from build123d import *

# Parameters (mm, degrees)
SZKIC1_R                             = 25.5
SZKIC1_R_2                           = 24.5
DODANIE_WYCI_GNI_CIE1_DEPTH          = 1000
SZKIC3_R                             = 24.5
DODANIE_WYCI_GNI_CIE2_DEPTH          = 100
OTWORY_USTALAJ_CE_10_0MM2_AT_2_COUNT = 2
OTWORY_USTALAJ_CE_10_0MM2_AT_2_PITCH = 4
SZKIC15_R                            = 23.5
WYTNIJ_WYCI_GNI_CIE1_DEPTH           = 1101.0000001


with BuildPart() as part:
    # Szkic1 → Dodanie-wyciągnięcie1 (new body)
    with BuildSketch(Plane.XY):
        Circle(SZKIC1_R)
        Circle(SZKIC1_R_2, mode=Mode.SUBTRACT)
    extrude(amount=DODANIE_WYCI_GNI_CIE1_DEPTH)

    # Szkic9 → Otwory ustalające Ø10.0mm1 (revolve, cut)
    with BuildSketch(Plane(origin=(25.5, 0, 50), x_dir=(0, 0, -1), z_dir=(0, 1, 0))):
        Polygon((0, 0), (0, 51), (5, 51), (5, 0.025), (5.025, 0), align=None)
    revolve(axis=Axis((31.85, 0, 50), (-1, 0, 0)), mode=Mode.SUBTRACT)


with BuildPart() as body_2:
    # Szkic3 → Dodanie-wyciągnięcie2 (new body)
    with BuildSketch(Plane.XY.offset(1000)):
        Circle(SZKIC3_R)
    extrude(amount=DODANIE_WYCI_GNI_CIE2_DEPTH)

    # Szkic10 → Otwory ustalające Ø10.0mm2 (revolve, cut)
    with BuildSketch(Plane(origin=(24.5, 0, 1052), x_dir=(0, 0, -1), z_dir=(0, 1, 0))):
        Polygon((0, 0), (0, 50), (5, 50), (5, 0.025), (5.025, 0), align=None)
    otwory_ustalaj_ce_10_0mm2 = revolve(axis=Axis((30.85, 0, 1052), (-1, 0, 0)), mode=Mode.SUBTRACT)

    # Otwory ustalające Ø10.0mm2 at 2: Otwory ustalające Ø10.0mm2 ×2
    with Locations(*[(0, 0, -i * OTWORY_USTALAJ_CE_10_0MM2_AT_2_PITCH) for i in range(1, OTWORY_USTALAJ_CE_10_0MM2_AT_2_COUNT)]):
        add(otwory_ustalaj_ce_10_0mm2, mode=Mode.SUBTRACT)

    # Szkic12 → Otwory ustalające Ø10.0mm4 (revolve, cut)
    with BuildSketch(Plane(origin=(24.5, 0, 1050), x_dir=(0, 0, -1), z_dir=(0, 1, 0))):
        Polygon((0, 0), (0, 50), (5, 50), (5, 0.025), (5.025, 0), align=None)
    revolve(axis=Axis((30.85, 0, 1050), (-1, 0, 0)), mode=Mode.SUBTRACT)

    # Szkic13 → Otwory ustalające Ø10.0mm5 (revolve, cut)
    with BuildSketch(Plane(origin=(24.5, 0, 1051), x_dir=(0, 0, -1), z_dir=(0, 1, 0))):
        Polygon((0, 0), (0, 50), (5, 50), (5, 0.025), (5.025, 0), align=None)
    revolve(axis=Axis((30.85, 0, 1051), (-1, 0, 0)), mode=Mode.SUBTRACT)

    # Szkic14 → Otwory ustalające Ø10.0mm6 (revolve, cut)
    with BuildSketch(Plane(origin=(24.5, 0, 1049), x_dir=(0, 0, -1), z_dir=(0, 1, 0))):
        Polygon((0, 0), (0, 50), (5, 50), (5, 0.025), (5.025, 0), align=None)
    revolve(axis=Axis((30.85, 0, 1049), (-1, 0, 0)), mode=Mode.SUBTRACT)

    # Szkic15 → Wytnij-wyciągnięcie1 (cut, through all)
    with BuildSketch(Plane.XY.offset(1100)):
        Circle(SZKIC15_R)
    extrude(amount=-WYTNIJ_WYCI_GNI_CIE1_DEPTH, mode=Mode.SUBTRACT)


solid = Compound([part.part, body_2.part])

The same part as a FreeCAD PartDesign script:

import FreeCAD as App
import Part
import Sketcher
from FreeCAD import Vector
Q = App.Units.Quantity


def add_polygon(sketch, points):
    """Adds a closed chain of lines whose ends are joined by coincident constraints."""
    first, n = sketch.GeometryCount, len(points)
    for a, b in zip(points, points[1:] + points[:1]):
        sketch.addGeometry(Part.LineSegment(App.Vector(*a, 0), App.Vector(*b, 0)), False)
    for i in range(n):
        sketch.addConstraint(Sketcher.Constraint("Coincident", first + i, 2, first + (i + 1) % n, 1))

doc = App.newDocument("Part")
body = doc.addObject("PartDesign::Body", "Body")

sketch1 = doc.addObject("Sketcher::SketchObject", "Sketch")
body.addObject(sketch1)
sketch1.AttachmentSupport = (doc.XY_Plane, [""])
sketch1.MapMode = "FlatFace"
sketch1.addGeometry([
    Part.Circle(Vector(0, 0, 0), Vector(0, 0, 1), 25.5),
    Part.Circle(Vector(0, 0, 0), Vector(0, 0, 1), 24.5),
], False)
sketch1.addConstraint([
    Sketcher.Constraint("Coincident", 0, 3, -1, 1),
    Sketcher.Constraint("Coincident", 1, 3, -1, 1),
    Sketcher.Constraint("Diameter", 0, 51.0),
    Sketcher.Constraint("Diameter", 1, 49.0),
])
pad1 = doc.addObject("PartDesign::Pad", "Pad")
body.addObject(pad1)
pad1.Profile = sketch1
pad1.Length = 1000

sketch2 = doc.addObject("Sketcher::SketchObject", "Sketch001")
body.addObject(sketch2)
sketch2.AttachmentSupport = (doc.XZ_Plane, [""])
sketch2.MapMode = "FlatFace"
add_polygon(sketch2, [(-25.5, 50), (25.5, 50), (25.5, 44.975), (25.475, 45), (-25.5, 45)])
sketch2.addGeometry(Part.LineSegment(Vector(25.5, 50, 0), Vector(-25.5, 50, 0)), True)
sketch2.addConstraint([
    Sketcher.Constraint("Horizontal", 0),
    Sketcher.Constraint("Vertical", 1),
    Sketcher.Constraint("Horizontal", 3),
    Sketcher.Constraint("Vertical", 4),
    Sketcher.Constraint("Horizontal", 5),
    Sketcher.Constraint("Coincident", 5, 1, 0, 2),
    Sketcher.Constraint("Vertical", 3, 2, 5, 2),
    Sketcher.Constraint("DistanceX", 0, 1, 0, 2, 51.0),
    Sketcher.Constraint("DistanceY", 4, 1, 4, 2, 5.0),
    Sketcher.Constraint("Angle", 2, Q("135 deg")),
    Sketcher.Constraint("DistanceY", -1, 1, 0, 2, 50.0),
    Sketcher.Constraint("DistanceX", -1, 1, 0, 2, 25.5),
    Sketcher.Constraint("DistanceX", 3, 2, 3, 1, 50.975),
])
groove = doc.addObject("PartDesign::Groove", "Groove")
body.addObject(groove)
groove.Profile = sketch2
groove.ReferenceAxis = (sketch2, ["Axis0"])
groove.Angle = 360
body2 = doc.addObject("PartDesign::Body", "Body001")

sketch3 = doc.addObject("Sketcher::SketchObject", "Sketch002")
body2.addObject(sketch3)
sketch3.AttachmentSupport = (doc.getObject("XY_Plane001"), [""])
sketch3.MapMode = "FlatFace"
sketch3.AttachmentOffset = App.Placement(Vector(0, 0, 1000), App.Rotation())
sketch3.addGeometry(Part.Circle(Vector(0, 0, 0), Vector(0, 0, 1), 24.5), False)
sketch3.addConstraint([
    Sketcher.Constraint("Coincident", 0, 3, -1, 1),
    Sketcher.Constraint("Diameter", 0, 49.0),
])
pad2 = doc.addObject("PartDesign::Pad", "Pad001")
body2.addObject(pad2)
pad2.Profile = sketch3
pad2.Length = 100

sketch4 = doc.addObject("Sketcher::SketchObject", "Sketch003")
body2.addObject(sketch4)
sketch4.AttachmentSupport = (doc.getObject("XZ_Plane001"), [""])
sketch4.MapMode = "FlatFace"
add_polygon(sketch4, [(-25.5, 1052), (24.5, 1052), (24.5, 1046.975), (24.475, 1047), (-25.5, 1047)])
sketch4.addGeometry(Part.LineSegment(Vector(24.5, 1052, 0), Vector(-25.5, 1052, 0)), True)
sketch4.addConstraint([
    Sketcher.Constraint("Horizontal", 0),
    Sketcher.Constraint("Vertical", 1),
    Sketcher.Constraint("Horizontal", 3),
    Sketcher.Constraint("Vertical", 4),
    Sketcher.Constraint("Horizontal", 5),
    Sketcher.Constraint("Coincident", 5, 1, 0, 2),
    Sketcher.Constraint("Vertical", 3, 2, 5, 2),
    Sketcher.Constraint("DistanceX", 0, 1, 0, 2, 50.0),
    Sketcher.Constraint("DistanceY", 4, 1, 4, 2, 5.0),
    Sketcher.Constraint("Angle", 2, Q("135 deg")),
    Sketcher.Constraint("DistanceY", -1, 1, 0, 2, 1052.0),
    Sketcher.Constraint("DistanceX", -1, 1, 0, 2, 24.5),
    Sketcher.Constraint("DistanceX", 3, 2, 3, 1, 49.975),
])
groove2 = doc.addObject("PartDesign::Groove", "Groove001")
body2.addObject(groove2)
groove2.Profile = sketch4
groove2.ReferenceAxis = (sketch4, ["Axis0"])
groove2.Angle = 360
doc.recompute()

linearpattern = doc.addObject("PartDesign::LinearPattern", "LinearPattern")
body2.addObject(linearpattern)
linearpattern.Originals = [groove2]
linearpattern.Direction = (doc.getObject("Z_Axis001"), [""])
linearpattern.Mode = "offset"
linearpattern.Offset = 4
linearpattern.Occurrences = 2
linearpattern.Reversed = True
body2.Tip = linearpattern

sketch5 = doc.addObject("Sketcher::SketchObject", "Sketch004")
body2.addObject(sketch5)
sketch5.AttachmentSupport = (doc.getObject("XZ_Plane001"), [""])
sketch5.MapMode = "FlatFace"
add_polygon(sketch5, [(-25.5, 1050), (24.5, 1050), (24.5, 1044.975), (24.475, 1045), (-25.5, 1045)])
sketch5.addGeometry(Part.LineSegment(Vector(24.5, 1050, 0), Vector(-25.5, 1050, 0)), True)
sketch5.addConstraint([
    Sketcher.Constraint("Horizontal", 0),
    Sketcher.Constraint("Vertical", 1),
    Sketcher.Constraint("Horizontal", 3),
    Sketcher.Constraint("Vertical", 4),
    Sketcher.Constraint("Horizontal", 5),
    Sketcher.Constraint("Coincident", 5, 1, 0, 2),
    Sketcher.Constraint("Vertical", 3, 2, 5, 2),
    Sketcher.Constraint("DistanceX", 0, 1, 0, 2, 50.0),
    Sketcher.Constraint("DistanceY", 4, 1, 4, 2, 5.0),
    Sketcher.Constraint("Angle", 2, Q("135 deg")),
    Sketcher.Constraint("DistanceY", -1, 1, 0, 2, 1050.0),
    Sketcher.Constraint("DistanceX", -1, 1, 0, 2, 24.5),
    Sketcher.Constraint("DistanceX", 3, 2, 3, 1, 49.975),
])
groove3 = doc.addObject("PartDesign::Groove", "Groove002")
body2.addObject(groove3)
groove3.Profile = sketch5
groove3.ReferenceAxis = (sketch5, ["Axis0"])
groove3.Angle = 360

sketch6 = doc.addObject("Sketcher::SketchObject", "Sketch005")
body2.addObject(sketch6)
sketch6.AttachmentSupport = (doc.getObject("XZ_Plane001"), [""])
sketch6.MapMode = "FlatFace"
add_polygon(sketch6, [(-25.5, 1051), (24.5, 1051), (24.5, 1045.975), (24.475, 1046), (-25.5, 1046)])
sketch6.addGeometry(Part.LineSegment(Vector(24.5, 1051, 0), Vector(-25.5, 1051, 0)), True)
sketch6.addConstraint([
    Sketcher.Constraint("Horizontal", 0),
    Sketcher.Constraint("Vertical", 1),
    Sketcher.Constraint("Horizontal", 3),
    Sketcher.Constraint("Vertical", 4),
    Sketcher.Constraint("Horizontal", 5),
    Sketcher.Constraint("Coincident", 5, 1, 0, 2),
    Sketcher.Constraint("Vertical", 3, 2, 5, 2),
    Sketcher.Constraint("DistanceX", 0, 1, 0, 2, 50.0),
    Sketcher.Constraint("DistanceY", 4, 1, 4, 2, 5.0),
    Sketcher.Constraint("Angle", 2, Q("135 deg")),
    Sketcher.Constraint("DistanceY", -1, 1, 0, 2, 1051.0),
    Sketcher.Constraint("DistanceX", -1, 1, 0, 2, 24.5),
    Sketcher.Constraint("DistanceX", 3, 2, 3, 1, 49.975),
])
groove4 = doc.addObject("PartDesign::Groove", "Groove003")
body2.addObject(groove4)
groove4.Profile = sketch6
groove4.ReferenceAxis = (sketch6, ["Axis0"])
groove4.Angle = 360

sketch7 = doc.addObject("Sketcher::SketchObject", "Sketch006")
body2.addObject(sketch7)
sketch7.AttachmentSupport = (doc.getObject("XZ_Plane001"), [""])
sketch7.MapMode = "FlatFace"
add_polygon(sketch7, [(-25.5, 1049), (24.5, 1049), (24.5, 1043.975), (24.475, 1044), (-25.5, 1044)])
sketch7.addGeometry(Part.LineSegment(Vector(24.5, 1049, 0), Vector(-25.5, 1049, 0)), True)
sketch7.addConstraint([
    Sketcher.Constraint("Horizontal", 0),
    Sketcher.Constraint("Vertical", 1),
    Sketcher.Constraint("Horizontal", 3),
    Sketcher.Constraint("Vertical", 4),
    Sketcher.Constraint("Horizontal", 5),
    Sketcher.Constraint("Coincident", 5, 1, 0, 2),
    Sketcher.Constraint("Vertical", 3, 2, 5, 2),
    Sketcher.Constraint("DistanceX", 0, 1, 0, 2, 50.0),
    Sketcher.Constraint("DistanceY", 4, 1, 4, 2, 5.0),
    Sketcher.Constraint("Angle", 2, Q("135 deg")),
    Sketcher.Constraint("DistanceY", -1, 1, 0, 2, 1049.0),
    Sketcher.Constraint("DistanceX", -1, 1, 0, 2, 24.5),
    Sketcher.Constraint("DistanceX", 3, 2, 3, 1, 49.975),
])
groove5 = doc.addObject("PartDesign::Groove", "Groove004")
body2.addObject(groove5)
groove5.Profile = sketch7
groove5.ReferenceAxis = (sketch7, ["Axis0"])
groove5.Angle = 360

sketch8 = doc.addObject("Sketcher::SketchObject", "Sketch007")
body2.addObject(sketch8)
sketch8.AttachmentSupport = (doc.getObject("XY_Plane001"), [""])
sketch8.MapMode = "FlatFace"
sketch8.AttachmentOffset = App.Placement(Vector(0, 0, 1100), App.Rotation())
sketch8.addGeometry(Part.Circle(Vector(0, 0, 0), Vector(0, 0, 1), 23.5), False)
sketch8.addConstraint([
    Sketcher.Constraint("Coincident", 0, 3, -1, 1),
    Sketcher.Constraint("Diameter", 0, 47.0),
])
pocket1 = doc.addObject("PartDesign::Pocket", "Pocket")
body2.addObject(pocket1)
pocket1.Profile = sketch8
pocket1.Type = "ThroughAll"

doc.recompute()
